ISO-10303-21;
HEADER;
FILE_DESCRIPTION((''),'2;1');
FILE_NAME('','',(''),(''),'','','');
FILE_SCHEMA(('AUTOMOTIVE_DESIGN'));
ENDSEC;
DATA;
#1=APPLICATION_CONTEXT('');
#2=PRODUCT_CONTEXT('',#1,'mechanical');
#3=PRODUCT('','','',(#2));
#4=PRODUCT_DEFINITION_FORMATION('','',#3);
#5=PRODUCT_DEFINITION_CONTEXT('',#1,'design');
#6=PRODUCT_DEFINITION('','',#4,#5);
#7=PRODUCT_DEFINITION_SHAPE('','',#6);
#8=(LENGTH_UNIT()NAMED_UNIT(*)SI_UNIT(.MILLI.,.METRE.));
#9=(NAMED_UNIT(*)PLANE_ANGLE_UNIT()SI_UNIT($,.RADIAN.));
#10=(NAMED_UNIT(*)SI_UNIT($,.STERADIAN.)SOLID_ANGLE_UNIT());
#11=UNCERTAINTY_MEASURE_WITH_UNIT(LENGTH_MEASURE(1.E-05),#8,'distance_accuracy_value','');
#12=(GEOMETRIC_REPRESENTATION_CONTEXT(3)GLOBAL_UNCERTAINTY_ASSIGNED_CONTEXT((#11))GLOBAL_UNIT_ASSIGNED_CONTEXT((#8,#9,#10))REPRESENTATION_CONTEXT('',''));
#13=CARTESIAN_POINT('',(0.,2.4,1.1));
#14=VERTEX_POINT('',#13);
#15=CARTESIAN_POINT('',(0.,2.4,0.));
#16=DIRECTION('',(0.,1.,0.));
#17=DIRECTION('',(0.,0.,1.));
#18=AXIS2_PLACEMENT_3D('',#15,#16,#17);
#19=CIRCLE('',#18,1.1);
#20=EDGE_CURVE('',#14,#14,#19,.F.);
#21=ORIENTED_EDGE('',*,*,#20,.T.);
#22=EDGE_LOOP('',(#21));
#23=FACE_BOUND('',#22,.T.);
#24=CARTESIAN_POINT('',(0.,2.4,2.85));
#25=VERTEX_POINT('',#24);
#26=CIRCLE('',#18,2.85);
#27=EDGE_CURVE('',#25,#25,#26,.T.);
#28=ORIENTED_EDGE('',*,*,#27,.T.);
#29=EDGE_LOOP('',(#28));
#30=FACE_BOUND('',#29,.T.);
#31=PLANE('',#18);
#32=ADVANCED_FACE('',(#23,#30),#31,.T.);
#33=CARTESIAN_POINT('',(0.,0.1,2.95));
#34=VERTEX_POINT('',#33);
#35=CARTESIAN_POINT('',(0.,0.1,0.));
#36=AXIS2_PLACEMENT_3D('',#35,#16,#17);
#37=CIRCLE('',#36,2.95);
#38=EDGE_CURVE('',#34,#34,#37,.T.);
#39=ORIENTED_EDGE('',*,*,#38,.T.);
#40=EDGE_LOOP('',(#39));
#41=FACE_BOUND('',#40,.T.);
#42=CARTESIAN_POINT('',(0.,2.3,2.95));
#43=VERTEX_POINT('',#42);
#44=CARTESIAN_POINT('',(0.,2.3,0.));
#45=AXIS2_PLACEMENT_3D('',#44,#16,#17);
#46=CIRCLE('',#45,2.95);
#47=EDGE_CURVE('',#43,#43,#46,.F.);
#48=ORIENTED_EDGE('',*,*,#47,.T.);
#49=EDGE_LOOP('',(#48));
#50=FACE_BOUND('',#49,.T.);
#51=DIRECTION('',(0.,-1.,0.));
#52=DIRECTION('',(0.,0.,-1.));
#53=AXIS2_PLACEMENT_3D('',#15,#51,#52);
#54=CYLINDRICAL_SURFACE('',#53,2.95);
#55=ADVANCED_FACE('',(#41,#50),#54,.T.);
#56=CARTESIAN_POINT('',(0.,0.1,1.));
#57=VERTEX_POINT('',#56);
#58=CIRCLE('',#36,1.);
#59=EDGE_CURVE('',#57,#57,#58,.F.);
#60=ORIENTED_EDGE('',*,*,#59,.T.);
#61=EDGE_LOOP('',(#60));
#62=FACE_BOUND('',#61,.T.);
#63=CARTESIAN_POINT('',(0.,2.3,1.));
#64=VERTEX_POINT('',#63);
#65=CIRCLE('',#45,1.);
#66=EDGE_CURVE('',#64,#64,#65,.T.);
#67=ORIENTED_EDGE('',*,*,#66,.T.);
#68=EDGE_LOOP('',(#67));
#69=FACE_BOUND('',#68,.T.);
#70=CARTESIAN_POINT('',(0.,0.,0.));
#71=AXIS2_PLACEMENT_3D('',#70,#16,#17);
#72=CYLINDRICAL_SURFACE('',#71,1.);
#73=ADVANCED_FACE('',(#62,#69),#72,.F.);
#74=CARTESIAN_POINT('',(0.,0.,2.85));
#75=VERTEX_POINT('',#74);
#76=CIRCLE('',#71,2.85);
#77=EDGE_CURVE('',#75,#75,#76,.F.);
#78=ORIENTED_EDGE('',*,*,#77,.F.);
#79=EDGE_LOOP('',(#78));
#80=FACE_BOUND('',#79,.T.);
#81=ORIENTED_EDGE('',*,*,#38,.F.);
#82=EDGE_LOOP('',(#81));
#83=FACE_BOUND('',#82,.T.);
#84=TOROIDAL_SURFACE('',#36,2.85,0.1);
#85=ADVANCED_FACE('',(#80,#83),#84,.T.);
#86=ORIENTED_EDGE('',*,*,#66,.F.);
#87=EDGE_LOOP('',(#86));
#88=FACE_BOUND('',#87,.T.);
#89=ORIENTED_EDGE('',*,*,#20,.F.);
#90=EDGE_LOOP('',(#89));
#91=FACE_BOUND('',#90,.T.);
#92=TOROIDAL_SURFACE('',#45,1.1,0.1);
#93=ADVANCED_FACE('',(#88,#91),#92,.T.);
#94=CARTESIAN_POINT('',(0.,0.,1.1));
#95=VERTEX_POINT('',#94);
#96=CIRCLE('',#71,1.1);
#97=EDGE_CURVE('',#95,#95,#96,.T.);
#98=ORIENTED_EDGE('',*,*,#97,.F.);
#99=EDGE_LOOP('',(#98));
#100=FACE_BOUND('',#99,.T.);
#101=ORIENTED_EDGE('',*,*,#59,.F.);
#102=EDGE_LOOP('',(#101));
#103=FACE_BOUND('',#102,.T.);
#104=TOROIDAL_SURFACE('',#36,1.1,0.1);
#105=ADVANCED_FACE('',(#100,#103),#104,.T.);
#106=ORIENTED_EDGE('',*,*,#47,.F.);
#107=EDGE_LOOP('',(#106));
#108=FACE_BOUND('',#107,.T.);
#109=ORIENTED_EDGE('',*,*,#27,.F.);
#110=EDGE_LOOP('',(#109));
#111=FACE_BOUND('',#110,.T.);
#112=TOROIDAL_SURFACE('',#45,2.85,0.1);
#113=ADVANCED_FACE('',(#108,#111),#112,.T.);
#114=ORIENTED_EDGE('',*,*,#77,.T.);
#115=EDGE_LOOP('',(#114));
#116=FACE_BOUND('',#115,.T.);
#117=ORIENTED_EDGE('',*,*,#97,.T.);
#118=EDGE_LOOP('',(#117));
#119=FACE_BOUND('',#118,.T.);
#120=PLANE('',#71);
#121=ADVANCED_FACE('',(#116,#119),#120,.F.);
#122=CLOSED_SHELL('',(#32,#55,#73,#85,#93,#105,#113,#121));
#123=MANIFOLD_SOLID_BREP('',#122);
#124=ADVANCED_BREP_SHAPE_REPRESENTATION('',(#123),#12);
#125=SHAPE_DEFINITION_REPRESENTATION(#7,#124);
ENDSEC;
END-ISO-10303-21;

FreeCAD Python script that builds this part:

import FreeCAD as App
import Part
import Sketcher

V = App.Vector


def edges_at(feature, points):
    """Names of the edges that pass closest to the given points."""
    edges = feature.Shape.Edges
    near = lambda p: min(range(len(edges)), key=lambda i: edges[i].distToShape(Part.Vertex(*p))[0])
    return sorted({f"Edge{near(p) + 1}" for p in points})

doc = App.newDocument("Part")
body = doc.addObject("PartDesign::Body", "Body")

# Sketch on XZ plane
sketch1 = doc.addObject("Sketcher::SketchObject", "Sketch")
body.addObject(sketch1)
sketch1.AttachmentSupport = (doc.XZ_Plane, [""])
sketch1.MapMode = "FlatFace"
sketch1.addGeometry(Part.Circle(V(0, 0, 0), V(0, 0, 1), 3), False)
sketch1.addConstraint([
    Sketcher.Constraint("Coincident", 0, 3, -1, 1),
    Sketcher.Constraint("Diameter", 0, 5.9),
])
pad1 = doc.addObject("PartDesign::Pad", "Pad")
body.addObject(pad1)
pad1.Profile = sketch1
pad1.Length = 2.4
pad1.Reversed = True

# Sketch on XZ plane
sketch2 = doc.addObject("Sketcher::SketchObject", "Sketch001")
body.addObject(sketch2)
sketch2.AttachmentSupport = (doc.XZ_Plane, [""])
sketch2.MapMode = "FlatFace"
sketch2.AttachmentOffset = App.Placement(V(0, 0, -2.4), App.Rotation())
sketch2.addGeometry(Part.Circle(V(0, 0, 0), V(0, 0, 1), 1), False)
sketch2.addConstraint([
    Sketcher.Constraint("Coincident", 0, 3, -1, 1),
    Sketcher.Constraint("Diameter", 0, 2.0),
])
pocket1 = doc.addObject("PartDesign::Pocket", "Pocket")
body.addObject(pocket1)
pocket1.Profile = sketch2
pocket1.Type = "ThroughAll"
pocket1.Reversed = True
doc.recompute()

fillet = doc.addObject("PartDesign::Fillet", "Fillet")
body.addObject(fillet)
fillet.Base = (pocket1, edges_at(pocket1, [
    (0, 0, -2.95),
    (0, 2.4, -2.95),
    (0, 0, -1),
    (0, 2.4, -1),
]))
fillet.Radius = 0.1

doc.recompute()
